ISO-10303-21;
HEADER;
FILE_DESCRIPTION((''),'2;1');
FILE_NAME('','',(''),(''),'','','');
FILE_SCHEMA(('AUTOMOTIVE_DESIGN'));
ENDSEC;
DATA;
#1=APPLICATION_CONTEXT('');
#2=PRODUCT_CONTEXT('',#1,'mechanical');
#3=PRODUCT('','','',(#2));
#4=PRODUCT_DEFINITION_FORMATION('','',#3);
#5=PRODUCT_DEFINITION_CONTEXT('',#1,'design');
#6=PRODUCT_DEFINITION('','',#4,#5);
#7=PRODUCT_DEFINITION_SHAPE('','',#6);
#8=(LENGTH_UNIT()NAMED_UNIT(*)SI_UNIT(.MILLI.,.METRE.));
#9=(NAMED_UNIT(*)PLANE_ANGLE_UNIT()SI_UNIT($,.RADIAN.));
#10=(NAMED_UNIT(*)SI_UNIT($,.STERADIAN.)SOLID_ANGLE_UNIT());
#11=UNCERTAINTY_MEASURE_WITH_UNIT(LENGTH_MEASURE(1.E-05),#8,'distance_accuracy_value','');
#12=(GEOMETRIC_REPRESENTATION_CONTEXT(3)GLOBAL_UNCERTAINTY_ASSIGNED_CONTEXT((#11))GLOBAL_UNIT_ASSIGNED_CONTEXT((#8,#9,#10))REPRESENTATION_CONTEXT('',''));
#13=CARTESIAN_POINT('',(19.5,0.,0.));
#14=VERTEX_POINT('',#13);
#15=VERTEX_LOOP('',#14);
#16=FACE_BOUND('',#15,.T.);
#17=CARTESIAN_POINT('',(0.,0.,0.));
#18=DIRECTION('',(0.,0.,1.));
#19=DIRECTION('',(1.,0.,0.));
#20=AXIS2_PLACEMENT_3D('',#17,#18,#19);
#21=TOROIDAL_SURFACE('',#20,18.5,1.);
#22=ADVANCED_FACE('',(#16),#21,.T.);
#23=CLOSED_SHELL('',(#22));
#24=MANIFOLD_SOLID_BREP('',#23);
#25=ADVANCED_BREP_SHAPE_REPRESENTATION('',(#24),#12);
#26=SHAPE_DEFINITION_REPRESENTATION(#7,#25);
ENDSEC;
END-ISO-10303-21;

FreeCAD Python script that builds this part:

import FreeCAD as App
import Part
import Sketcher

V = App.Vector
Q = App.Units.Quantity

doc = App.newDocument("Part")
body = doc.addObject("PartDesign::Body", "Body")

# Sketch on YZ plane
sketch1 = body.newObject("Sketcher::SketchObject", "Sketch")
sketch1.AttachmentSupport = (doc.getObject("YZ_Plane"), [""])
sketch1.MapMode = "FlatFace"
sketch1.addGeometry(Part.Circle(V(18.5, 0, 0), V(0, 0, 1), 1), False)
sketch1.addConstraint(Sketcher.Constraint("PointOnObject", 0, 3, -1))
sketch1.addConstraint(Sketcher.Constraint("Diameter", 0, Q("2 mm")))
sketch1.addConstraint(Sketcher.Constraint("DistanceX", -1, 1, 0, 3, Q("18.5 mm")))
revolution = body.newObject("PartDesign::Revolution", "Revolution")
revolution.Profile = sketch1
revolution.ReferenceAxis = (sketch1, ["V_Axis"])
revolution.Angle = 360

doc.recompute()
